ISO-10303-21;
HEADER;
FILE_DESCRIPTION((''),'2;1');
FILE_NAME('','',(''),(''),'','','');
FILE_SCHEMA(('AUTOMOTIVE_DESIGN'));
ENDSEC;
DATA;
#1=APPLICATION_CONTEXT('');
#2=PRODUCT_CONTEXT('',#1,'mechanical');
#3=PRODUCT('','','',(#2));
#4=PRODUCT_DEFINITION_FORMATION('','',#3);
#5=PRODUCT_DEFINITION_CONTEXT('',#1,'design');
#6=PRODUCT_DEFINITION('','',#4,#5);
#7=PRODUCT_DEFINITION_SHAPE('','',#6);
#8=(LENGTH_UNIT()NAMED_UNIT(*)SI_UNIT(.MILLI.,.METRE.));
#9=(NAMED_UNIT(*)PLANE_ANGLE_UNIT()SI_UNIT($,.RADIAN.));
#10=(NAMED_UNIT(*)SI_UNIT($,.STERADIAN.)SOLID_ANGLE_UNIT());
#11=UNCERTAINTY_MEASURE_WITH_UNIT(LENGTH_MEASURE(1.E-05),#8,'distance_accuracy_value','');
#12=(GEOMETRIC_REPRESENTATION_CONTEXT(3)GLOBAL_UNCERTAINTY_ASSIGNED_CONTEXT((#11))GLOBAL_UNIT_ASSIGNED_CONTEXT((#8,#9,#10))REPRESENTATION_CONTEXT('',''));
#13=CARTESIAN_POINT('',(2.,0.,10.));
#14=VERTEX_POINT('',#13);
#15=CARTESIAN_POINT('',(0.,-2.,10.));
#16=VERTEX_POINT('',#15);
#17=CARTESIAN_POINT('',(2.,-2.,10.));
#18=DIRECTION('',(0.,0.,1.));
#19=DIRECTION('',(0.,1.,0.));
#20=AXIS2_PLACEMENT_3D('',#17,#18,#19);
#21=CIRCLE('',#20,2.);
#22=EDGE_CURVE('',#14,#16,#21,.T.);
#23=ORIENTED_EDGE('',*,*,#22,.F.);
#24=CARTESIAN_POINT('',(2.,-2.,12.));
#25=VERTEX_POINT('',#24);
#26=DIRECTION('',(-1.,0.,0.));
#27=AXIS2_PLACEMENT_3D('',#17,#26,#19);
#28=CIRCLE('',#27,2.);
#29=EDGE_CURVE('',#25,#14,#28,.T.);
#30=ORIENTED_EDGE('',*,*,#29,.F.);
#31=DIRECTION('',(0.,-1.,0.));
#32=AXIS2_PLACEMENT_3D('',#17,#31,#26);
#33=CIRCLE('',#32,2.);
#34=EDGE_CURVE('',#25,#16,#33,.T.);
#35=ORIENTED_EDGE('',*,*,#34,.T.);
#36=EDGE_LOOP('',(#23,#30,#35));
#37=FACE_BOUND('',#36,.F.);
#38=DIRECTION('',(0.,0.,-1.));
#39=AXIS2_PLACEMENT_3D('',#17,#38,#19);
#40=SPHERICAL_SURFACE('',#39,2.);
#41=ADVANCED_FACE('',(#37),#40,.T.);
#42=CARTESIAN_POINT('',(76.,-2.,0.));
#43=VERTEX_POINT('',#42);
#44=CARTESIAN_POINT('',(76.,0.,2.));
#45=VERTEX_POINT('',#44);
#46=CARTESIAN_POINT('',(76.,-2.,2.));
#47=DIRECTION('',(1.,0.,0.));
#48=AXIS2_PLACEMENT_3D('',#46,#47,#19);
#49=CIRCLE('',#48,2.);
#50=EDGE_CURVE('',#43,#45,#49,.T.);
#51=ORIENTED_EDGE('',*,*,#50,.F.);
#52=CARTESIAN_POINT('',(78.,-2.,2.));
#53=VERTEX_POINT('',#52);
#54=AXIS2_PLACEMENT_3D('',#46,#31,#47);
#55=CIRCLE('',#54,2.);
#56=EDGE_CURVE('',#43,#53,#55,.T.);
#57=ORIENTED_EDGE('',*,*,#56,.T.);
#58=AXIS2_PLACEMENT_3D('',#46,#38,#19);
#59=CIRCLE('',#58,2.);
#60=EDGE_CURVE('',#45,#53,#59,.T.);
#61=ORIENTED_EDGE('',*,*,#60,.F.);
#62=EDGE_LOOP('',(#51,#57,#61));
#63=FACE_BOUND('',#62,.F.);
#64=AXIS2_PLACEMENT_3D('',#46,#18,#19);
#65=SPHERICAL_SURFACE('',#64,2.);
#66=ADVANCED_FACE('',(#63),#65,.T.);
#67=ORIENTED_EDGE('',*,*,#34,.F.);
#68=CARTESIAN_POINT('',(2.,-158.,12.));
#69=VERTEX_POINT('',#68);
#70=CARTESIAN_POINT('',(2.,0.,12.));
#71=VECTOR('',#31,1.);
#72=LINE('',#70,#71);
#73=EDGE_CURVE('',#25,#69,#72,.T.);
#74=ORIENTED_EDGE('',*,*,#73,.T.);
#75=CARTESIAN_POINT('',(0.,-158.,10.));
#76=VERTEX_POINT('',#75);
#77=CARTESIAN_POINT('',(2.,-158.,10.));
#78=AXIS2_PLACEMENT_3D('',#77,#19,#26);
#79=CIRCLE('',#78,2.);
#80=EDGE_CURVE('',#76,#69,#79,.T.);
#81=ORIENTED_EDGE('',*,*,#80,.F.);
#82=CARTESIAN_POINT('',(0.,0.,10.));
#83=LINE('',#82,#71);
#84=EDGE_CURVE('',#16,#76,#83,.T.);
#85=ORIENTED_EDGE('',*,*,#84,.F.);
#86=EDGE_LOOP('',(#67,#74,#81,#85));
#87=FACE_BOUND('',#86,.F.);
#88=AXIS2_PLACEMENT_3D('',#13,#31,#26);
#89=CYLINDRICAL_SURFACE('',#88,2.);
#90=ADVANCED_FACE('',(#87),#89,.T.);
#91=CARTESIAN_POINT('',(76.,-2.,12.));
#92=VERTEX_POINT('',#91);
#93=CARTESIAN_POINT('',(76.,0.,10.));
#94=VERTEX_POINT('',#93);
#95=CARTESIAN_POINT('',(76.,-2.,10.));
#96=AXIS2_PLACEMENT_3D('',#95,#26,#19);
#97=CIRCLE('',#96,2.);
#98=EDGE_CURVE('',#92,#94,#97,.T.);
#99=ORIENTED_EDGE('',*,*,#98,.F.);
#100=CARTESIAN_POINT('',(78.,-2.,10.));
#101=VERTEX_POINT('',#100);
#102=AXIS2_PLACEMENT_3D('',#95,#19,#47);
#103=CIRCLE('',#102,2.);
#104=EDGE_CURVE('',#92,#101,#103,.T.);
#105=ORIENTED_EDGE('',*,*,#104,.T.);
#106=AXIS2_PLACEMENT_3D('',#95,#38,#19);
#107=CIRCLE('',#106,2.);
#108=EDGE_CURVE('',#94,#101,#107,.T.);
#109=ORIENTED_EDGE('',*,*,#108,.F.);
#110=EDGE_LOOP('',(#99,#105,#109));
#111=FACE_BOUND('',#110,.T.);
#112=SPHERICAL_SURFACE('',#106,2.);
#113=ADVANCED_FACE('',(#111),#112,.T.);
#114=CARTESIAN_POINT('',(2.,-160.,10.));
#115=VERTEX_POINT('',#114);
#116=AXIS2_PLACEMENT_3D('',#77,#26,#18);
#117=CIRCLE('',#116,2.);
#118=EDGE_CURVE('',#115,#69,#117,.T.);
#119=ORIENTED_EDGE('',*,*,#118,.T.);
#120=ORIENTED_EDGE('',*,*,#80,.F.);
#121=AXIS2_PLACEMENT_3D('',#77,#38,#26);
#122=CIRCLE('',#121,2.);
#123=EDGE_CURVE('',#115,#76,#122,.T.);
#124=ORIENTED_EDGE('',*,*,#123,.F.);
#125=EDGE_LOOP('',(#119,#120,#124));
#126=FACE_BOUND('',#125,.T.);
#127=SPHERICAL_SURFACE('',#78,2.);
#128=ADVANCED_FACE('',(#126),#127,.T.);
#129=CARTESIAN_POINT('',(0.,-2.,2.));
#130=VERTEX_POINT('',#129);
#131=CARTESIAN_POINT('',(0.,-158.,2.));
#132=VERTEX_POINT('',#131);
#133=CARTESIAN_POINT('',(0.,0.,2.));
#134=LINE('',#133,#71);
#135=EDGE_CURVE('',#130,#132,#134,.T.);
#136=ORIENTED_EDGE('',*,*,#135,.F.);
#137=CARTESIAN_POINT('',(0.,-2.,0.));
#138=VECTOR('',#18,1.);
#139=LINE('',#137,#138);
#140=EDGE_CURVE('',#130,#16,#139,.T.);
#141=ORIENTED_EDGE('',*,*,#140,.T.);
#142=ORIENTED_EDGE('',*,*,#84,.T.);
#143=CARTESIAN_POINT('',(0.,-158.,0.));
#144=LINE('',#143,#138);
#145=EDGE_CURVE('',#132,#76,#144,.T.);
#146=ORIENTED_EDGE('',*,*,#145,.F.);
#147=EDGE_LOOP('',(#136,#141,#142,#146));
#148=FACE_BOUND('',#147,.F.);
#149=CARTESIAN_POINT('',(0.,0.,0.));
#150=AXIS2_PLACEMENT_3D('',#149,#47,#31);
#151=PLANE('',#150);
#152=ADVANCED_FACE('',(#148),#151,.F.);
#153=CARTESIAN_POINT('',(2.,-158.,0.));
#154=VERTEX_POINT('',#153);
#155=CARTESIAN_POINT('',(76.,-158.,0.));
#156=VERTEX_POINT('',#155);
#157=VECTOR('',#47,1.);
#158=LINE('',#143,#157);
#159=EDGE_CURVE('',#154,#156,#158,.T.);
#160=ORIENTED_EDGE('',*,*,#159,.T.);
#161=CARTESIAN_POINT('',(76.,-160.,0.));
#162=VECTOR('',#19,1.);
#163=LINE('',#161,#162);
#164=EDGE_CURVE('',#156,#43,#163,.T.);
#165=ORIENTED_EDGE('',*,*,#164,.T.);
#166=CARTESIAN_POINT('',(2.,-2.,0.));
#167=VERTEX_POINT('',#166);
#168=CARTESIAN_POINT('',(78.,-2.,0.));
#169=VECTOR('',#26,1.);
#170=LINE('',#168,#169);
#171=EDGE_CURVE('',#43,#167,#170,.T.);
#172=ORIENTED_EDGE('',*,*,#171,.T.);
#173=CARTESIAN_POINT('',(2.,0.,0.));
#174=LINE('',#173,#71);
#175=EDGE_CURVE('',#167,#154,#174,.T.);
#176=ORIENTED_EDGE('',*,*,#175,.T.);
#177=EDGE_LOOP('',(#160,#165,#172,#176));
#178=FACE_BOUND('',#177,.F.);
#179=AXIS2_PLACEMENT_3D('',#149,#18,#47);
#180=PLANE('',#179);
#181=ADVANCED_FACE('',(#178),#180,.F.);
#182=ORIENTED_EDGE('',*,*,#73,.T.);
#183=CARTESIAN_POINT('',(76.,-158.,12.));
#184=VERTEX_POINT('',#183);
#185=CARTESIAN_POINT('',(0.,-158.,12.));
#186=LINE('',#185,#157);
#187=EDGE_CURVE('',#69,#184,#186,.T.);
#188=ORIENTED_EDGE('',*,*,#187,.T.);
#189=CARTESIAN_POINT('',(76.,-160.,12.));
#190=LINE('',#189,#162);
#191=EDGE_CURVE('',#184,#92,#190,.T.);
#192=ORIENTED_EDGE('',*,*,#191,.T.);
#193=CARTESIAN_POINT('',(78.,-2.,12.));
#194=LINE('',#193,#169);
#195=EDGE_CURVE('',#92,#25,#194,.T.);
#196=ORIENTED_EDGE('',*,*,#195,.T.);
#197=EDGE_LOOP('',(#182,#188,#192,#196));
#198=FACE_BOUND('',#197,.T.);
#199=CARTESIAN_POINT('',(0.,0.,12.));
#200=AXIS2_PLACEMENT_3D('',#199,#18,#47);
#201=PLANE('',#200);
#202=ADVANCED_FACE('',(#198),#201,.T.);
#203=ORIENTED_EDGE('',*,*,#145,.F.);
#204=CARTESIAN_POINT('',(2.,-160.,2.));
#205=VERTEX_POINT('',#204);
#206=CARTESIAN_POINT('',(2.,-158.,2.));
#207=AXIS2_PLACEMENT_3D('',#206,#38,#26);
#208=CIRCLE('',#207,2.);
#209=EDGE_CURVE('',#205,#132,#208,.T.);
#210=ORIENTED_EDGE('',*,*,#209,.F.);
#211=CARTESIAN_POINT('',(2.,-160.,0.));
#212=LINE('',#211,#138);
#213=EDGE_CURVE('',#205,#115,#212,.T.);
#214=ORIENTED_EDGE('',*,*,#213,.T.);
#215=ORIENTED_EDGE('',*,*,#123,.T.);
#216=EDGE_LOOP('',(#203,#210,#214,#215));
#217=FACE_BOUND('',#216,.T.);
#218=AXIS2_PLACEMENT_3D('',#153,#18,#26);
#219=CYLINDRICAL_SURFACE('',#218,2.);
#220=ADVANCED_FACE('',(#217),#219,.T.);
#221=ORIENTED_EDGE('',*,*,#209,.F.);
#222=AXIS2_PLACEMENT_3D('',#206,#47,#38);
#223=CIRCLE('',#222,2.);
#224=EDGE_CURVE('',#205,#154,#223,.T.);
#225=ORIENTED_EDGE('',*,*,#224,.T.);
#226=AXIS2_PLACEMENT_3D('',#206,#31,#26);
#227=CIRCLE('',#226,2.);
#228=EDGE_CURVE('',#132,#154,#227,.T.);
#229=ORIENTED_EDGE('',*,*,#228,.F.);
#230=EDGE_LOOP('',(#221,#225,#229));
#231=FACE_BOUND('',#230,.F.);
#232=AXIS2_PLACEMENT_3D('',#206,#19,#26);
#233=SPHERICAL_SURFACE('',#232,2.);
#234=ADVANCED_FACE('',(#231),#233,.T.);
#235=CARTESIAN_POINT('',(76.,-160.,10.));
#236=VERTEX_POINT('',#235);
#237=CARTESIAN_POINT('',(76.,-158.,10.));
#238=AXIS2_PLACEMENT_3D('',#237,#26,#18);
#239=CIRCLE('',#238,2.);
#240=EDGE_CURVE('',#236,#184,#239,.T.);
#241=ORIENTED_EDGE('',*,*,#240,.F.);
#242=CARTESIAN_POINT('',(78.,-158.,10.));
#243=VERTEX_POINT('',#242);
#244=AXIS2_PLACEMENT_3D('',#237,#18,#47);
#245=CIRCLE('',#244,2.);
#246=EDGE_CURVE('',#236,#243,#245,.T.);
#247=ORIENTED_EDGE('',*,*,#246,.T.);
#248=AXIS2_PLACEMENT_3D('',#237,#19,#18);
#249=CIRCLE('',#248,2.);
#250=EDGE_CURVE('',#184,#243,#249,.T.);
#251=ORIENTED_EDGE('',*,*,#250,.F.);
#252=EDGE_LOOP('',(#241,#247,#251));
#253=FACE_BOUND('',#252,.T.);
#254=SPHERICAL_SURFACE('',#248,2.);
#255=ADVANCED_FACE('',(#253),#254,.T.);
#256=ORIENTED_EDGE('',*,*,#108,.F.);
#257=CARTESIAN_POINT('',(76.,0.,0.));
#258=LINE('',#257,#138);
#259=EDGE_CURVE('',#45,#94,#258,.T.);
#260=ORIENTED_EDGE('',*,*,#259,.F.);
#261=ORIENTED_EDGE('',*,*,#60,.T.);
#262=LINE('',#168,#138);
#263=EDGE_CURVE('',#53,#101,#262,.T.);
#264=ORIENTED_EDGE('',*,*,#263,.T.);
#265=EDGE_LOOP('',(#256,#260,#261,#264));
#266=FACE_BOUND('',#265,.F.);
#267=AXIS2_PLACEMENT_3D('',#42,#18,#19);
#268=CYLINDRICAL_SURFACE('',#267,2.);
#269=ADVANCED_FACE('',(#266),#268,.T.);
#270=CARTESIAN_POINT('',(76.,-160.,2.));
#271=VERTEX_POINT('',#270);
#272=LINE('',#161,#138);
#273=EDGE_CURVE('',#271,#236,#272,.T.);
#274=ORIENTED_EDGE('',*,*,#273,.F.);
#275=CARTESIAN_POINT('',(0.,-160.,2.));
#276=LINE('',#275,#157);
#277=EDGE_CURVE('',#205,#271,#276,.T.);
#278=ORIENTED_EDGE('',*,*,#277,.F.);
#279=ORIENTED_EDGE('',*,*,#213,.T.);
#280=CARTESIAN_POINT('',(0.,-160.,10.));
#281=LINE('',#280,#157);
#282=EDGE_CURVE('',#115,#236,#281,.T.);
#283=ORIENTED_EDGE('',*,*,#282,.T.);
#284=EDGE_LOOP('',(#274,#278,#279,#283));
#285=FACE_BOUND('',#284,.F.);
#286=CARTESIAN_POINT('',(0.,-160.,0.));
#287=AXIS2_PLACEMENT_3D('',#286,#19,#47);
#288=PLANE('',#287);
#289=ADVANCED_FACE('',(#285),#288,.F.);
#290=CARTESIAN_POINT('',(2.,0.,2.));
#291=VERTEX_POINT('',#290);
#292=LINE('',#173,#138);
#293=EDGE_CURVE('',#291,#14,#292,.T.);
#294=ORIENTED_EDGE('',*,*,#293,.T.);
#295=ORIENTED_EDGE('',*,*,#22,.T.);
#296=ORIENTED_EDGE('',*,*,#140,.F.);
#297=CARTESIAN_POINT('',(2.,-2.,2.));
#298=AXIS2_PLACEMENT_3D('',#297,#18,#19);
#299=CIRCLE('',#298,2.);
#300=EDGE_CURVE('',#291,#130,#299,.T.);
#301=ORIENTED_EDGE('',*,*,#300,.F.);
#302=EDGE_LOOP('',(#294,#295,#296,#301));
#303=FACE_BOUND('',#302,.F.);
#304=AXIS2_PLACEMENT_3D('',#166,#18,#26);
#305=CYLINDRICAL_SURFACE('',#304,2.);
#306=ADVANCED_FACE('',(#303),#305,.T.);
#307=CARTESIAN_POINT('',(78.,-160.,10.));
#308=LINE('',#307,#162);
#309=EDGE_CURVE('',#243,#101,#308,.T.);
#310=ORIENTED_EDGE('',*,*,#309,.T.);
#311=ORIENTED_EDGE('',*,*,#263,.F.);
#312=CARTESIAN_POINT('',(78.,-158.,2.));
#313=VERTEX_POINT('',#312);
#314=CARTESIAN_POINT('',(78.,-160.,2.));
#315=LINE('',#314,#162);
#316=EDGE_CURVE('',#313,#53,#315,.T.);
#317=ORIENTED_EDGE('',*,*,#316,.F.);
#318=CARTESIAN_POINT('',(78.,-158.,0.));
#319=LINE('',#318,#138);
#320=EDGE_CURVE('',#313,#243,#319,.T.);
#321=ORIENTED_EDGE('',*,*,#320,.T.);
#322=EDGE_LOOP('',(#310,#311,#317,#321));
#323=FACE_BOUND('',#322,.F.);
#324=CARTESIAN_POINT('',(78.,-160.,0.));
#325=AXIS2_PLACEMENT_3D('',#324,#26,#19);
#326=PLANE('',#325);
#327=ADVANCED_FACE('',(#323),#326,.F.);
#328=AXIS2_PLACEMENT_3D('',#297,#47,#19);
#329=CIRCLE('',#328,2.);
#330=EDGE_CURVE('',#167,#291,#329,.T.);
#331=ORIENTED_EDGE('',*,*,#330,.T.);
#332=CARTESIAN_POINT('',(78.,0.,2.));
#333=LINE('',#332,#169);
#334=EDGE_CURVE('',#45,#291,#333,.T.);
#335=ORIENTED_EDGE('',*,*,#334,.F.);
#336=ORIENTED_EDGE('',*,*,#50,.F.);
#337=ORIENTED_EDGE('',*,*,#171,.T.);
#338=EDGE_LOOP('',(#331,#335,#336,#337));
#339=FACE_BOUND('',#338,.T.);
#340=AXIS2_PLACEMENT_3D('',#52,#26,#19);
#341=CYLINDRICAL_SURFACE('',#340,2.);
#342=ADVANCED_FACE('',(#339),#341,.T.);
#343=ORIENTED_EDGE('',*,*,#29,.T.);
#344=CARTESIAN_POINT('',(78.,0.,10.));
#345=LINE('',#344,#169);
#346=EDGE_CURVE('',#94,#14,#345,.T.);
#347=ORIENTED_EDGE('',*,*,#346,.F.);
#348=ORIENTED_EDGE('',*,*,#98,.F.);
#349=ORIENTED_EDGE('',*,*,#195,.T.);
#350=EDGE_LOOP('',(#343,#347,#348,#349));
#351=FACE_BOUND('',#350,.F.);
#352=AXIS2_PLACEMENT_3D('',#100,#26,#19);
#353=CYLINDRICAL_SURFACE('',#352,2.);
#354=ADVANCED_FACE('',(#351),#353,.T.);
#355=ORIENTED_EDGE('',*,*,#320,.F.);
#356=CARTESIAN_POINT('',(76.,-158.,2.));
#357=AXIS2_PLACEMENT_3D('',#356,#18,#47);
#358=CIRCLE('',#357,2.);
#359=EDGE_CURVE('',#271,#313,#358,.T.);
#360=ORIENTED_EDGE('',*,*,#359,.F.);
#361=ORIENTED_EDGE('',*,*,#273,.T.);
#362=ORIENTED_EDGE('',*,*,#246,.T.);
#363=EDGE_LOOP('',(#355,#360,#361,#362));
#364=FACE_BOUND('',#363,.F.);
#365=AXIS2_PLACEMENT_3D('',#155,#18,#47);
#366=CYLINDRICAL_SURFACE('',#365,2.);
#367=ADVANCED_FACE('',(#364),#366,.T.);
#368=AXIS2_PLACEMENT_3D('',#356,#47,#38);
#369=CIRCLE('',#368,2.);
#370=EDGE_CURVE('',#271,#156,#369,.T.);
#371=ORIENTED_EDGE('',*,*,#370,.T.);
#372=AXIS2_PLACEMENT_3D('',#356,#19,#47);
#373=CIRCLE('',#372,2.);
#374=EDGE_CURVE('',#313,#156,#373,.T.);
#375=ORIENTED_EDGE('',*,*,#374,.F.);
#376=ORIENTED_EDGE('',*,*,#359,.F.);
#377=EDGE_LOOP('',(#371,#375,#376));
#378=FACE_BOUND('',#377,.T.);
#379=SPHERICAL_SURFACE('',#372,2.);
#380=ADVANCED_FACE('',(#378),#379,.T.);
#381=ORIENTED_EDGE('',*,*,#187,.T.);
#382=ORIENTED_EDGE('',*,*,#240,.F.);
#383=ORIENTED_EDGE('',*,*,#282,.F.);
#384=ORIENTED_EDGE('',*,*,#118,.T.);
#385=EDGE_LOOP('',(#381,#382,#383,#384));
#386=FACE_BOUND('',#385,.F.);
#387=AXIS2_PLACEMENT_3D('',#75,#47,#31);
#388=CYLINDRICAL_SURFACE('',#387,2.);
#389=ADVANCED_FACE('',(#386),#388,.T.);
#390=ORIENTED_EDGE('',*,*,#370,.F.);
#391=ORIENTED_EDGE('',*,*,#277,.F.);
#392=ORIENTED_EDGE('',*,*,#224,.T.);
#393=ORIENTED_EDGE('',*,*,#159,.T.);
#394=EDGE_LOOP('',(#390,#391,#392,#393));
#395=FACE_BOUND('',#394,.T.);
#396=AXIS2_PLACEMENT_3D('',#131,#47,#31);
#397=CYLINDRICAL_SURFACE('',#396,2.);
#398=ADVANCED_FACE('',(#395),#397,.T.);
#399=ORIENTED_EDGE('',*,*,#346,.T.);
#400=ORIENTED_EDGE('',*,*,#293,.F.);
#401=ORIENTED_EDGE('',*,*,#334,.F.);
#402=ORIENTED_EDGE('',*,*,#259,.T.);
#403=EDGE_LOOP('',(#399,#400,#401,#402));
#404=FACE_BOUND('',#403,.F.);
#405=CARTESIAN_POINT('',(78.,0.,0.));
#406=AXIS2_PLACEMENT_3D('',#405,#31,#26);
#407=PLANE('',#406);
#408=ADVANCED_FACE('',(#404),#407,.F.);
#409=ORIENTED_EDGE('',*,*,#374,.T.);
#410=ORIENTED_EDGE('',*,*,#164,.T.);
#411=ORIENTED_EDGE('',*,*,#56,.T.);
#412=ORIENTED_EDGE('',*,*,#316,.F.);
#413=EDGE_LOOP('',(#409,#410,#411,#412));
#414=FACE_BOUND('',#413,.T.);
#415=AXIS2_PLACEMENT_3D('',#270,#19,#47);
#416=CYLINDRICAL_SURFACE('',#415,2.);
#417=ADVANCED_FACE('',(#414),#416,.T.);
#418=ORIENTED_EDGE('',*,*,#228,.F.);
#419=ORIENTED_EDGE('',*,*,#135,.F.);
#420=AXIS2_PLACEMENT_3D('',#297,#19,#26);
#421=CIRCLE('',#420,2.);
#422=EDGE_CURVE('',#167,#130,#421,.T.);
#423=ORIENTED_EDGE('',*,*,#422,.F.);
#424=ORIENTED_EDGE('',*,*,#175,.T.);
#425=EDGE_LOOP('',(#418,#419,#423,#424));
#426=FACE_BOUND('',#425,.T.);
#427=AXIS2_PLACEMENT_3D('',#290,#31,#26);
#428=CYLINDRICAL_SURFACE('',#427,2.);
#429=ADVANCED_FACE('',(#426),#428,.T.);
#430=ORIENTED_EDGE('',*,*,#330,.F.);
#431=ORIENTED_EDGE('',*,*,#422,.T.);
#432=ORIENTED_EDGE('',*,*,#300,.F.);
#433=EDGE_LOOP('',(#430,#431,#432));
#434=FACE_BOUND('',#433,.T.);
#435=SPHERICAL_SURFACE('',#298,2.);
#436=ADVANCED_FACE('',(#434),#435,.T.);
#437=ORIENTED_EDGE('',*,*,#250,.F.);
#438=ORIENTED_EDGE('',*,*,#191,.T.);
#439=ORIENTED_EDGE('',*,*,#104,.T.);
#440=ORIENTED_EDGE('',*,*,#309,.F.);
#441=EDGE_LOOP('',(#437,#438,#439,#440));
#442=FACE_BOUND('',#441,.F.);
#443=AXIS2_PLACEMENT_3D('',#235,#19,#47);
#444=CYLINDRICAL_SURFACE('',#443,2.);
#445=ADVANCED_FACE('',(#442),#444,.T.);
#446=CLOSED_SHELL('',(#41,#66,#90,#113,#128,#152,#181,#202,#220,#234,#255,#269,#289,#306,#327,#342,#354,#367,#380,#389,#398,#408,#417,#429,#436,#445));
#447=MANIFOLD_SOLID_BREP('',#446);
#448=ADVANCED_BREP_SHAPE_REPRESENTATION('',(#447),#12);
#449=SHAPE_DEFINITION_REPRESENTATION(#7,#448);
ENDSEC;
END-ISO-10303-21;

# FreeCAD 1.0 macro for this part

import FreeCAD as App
import Part
import Sketcher

V = App.Vector
Q = App.Units.Quantity

doc = App.newDocument("Part")
params = doc.addObject("Spreadsheet::Sheet", "Params")
for row, (alias, value) in enumerate([
    ("sketch1_width", "78 mm"),
    ("sketch1_height", "160 mm"),
    ("pad1_length", "12 mm"),
    ("fillet_radius", "2 mm"),
], start=1):
    params.set(f"A{row}", alias)
    params.set(f"B{row}", "=" + value)
    params.setAlias(f"B{row}", alias)

body = doc.addObject("PartDesign::Body", "Body")

# Sketch on XY plane
sketch1 = doc.addObject("Sketcher::SketchObject", "Sketch")
body.addObject(sketch1)
sketch1.AttachmentSupport = (doc.XY_Plane, [""])
sketch1.MapMode = "FlatFace"
sketch1.addGeometry(Part.LineSegment(V(0, 0, 0), V(0, -160, 0)), False)
sketch1.addGeometry(Part.LineSegment(V(0, -160, 0), V(78, -160, 0)), False)
sketch1.addGeometry(Part.LineSegment(V(78, -160, 0), V(78, 0, 0)), False)
sketch1.addGeometry(Part.LineSegment(V(78, 0, 0), V(0, 0, 0)), False)
sketch1.addConstraint(Sketcher.Constraint("Coincident", 0, 2, 1, 1))
sketch1.addConstraint(Sketcher.Constraint("Coincident", 1, 2, 2, 1))
sketch1.addConstraint(Sketcher.Constraint("Coincident", 2, 2, 3, 1))
sketch1.addConstraint(Sketcher.Constraint("Coincident", 3, 2, 0, 1))
sketch1.addConstraint(Sketcher.Constraint("Vertical", 0))
sketch1.addConstraint(Sketcher.Constraint("Horizontal", 1))
sketch1.addConstraint(Sketcher.Constraint("Vertical", 2))
sketch1.addConstraint(Sketcher.Constraint("Horizontal", 3))
sketch1.addConstraint(Sketcher.Constraint("Coincident", 3, 2, -1, 1))
sketch1.addConstraint(Sketcher.Constraint("DistanceX", 1, 1, 1, 2, Q("78 mm")))
sketch1.addConstraint(Sketcher.Constraint("DistanceY", 0, 2, 0, 1, Q("160 mm")))
sketch1.setExpression("Constraints[9]", "Params.sketch1_width")
sketch1.setExpression("Constraints[10]", "Params.sketch1_height")
pad1 = doc.addObject("PartDesign::Pad", "Pad")
body.addObject(pad1)
pad1.Profile = sketch1
pad1.setExpression("Length", "Params.pad1_length")
doc.recompute()

fillet = doc.addObject("PartDesign::Fillet", "Fillet")
body.addObject(fillet)
fillet.Base = (pad1, ["Edge1"])
fillet.UseAllEdges = True
fillet.setExpression("Radius", "Params.fillet_radius")

doc.recompute()
